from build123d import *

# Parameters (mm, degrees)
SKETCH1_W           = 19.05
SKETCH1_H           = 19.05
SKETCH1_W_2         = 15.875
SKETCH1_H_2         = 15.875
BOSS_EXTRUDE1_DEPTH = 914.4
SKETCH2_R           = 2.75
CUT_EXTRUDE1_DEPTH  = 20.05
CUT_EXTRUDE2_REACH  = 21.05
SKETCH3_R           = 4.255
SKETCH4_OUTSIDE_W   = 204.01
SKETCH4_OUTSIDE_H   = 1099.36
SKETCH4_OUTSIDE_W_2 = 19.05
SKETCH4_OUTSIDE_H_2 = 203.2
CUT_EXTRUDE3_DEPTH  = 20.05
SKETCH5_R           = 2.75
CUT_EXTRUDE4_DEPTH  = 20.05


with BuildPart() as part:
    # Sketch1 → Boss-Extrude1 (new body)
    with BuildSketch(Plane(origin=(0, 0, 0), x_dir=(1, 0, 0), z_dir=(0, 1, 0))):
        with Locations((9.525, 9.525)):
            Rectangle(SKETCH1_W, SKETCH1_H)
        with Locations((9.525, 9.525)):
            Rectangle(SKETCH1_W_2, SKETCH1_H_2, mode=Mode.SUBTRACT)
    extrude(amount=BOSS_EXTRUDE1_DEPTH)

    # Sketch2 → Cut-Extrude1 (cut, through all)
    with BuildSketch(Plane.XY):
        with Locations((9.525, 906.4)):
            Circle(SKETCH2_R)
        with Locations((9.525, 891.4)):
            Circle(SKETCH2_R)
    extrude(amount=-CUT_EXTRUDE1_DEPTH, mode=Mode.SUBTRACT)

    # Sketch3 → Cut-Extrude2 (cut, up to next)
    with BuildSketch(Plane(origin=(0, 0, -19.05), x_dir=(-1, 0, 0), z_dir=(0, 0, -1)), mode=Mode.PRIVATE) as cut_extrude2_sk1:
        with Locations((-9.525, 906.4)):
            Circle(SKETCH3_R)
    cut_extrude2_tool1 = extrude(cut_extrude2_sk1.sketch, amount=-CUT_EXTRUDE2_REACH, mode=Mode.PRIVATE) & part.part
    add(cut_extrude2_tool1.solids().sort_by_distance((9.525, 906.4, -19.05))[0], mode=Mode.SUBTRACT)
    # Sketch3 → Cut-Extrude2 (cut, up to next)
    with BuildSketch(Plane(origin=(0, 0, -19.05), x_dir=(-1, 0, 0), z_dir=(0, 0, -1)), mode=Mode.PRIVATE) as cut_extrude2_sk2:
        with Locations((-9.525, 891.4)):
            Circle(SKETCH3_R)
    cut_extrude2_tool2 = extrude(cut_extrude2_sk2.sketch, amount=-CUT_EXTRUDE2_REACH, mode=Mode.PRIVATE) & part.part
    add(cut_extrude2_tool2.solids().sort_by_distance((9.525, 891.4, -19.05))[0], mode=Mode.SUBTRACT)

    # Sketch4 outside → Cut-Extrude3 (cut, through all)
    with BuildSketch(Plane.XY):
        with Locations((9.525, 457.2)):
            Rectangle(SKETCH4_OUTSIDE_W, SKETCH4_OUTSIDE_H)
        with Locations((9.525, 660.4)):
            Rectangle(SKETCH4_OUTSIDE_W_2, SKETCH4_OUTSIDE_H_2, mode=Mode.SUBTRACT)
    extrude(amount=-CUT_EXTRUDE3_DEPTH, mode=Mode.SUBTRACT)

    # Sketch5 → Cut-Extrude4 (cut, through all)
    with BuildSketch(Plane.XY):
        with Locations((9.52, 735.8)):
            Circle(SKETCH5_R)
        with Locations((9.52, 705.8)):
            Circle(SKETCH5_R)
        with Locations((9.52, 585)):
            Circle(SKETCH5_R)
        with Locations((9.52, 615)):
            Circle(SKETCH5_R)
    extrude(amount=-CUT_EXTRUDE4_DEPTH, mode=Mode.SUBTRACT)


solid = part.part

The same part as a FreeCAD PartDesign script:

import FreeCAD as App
import Part
import Sketcher

V = App.Vector
Q = App.Units.Quantity


def add_polygon(sketch, points):
    """Adds a closed chain of lines whose ends are joined by coincident constraints."""
    first, n = sketch.GeometryCount, len(points)
    for a, b in zip(points, points[1:] + points[:1]):
        sketch.addGeometry(Part.LineSegment(App.Vector(*a, 0), App.Vector(*b, 0)), False)
    for i in range(n):
        sketch.addConstraint(Sketcher.Constraint("Coincident", first + i, 2, first + (i + 1) % n, 1))

doc = App.newDocument("Part")
body = doc.addObject("PartDesign::Body", "Body")

sketch1 = doc.addObject("Sketcher::SketchObject", "Sketch")
body.addObject(sketch1)
sketch1.AttachmentSupport = (doc.XZ_Plane, [""])
sketch1.MapMode = "FlatFace"
add_polygon(sketch1, [(0, -19), (0, 0), (19, 0), (19, -19)])
add_polygon(sketch1, [(17, -2), (2, -2), (2, -17), (17, -17)])
sketch1.addConstraint(Sketcher.Constraint("Vertical", 0))
sketch1.addConstraint(Sketcher.Constraint("Horizontal", 1))
sketch1.addConstraint(Sketcher.Constraint("Vertical", 2))
sketch1.addConstraint(Sketcher.Constraint("Horizontal", 3))
sketch1.addConstraint(Sketcher.Constraint("Horizontal", 4))
sketch1.addConstraint(Sketcher.Constraint("Vertical", 5))
sketch1.addConstraint(Sketcher.Constraint("Horizontal", 6))
sketch1.addConstraint(Sketcher.Constraint("Vertical", 7))
sketch1.addConstraint(Sketcher.Constraint("Coincident", 0, 2, -1, 1))
sketch1.addConstraint(Sketcher.Constraint("Equal", 3, 0))
sketch1.addConstraint(Sketcher.Constraint("Equal", 6, 5))
sketch1.addConstraint(Sketcher.Constraint("DistanceX", 1, 1, 1, 2, Q("0.75 in")))
sketch1.addConstraint(Sketcher.Constraint("DistanceX", 4, 2, 4, 1, Q("0.625 in")))
sketch1.addConstraint(Sketcher.Constraint("DistanceX", -1, 1, 4, 2, Q("0.0625 in")))
sketch1.addConstraint(Sketcher.Constraint("DistanceY", 4, 2, -1, 1, Q("0.0625 in")))
pad1 = doc.addObject("PartDesign::Pad", "Pad")
body.addObject(pad1)
pad1.Profile = sketch1
pad1.Length = Q("36 in")
pad1.Reversed = True

sketch2 = doc.addObject("Sketcher::SketchObject", "Sketch001")
body.addObject(sketch2)
sketch2.AttachmentSupport = (doc.XY_Plane, [""])
sketch2.MapMode = "FlatFace"
sketch2.addGeometry(Part.Circle(V(9.5, 906.4, 0), V(0, 0, 1), 2.8), False)
sketch2.addGeometry(Part.Circle(V(9.5, 891.4, 0), V(0, 0, 1), 2.8), False)
sketch2.addConstraint(Sketcher.Constraint("Equal", 0, 1))
sketch2.addConstraint(Sketcher.Constraint("Vertical", 0, 3, 1, 3))
sketch2.addConstraint(Sketcher.Constraint("Diameter", 0, 5.5))
sketch2.addConstraint(Sketcher.Constraint("DistanceX", -1, 1, 0, 3, Q("0.375 in")))
sketch2.addConstraint(Sketcher.Constraint("DistanceY", -1, 1, 0, 3, 906.4))
sketch2.addConstraint(Sketcher.Constraint("DistanceY", -1, 1, 1, 3, 891.4))
pocket1 = doc.addObject("PartDesign::Pocket", "Pocket")
body.addObject(pocket1)
pocket1.Profile = sketch2
pocket1.Type = "ThroughAll"

sketch3 = doc.addObject("Sketcher::SketchObject", "Sketch002")
body.addObject(sketch3)
sketch3.AttachmentSupport = (doc.XY_Plane, [""])
sketch3.MapMode = "FlatFace"
sketch3.AttachmentOffset = App.Placement(V(0, 0, -0.75 * 25.4), App.Rotation())
sketch3.addGeometry(Part.Circle(V(9.5, 906.4, 0), V(0, 0, 1), 4.3), False)
sketch3.addConstraint(Sketcher.Constraint("Diameter", 0, 8.51))
sketch3.addConstraint(Sketcher.Constraint("DistanceX", -1, 1, 0, 3, Q("0.375 in")))
sketch3.addConstraint(Sketcher.Constraint("DistanceY", -1, 1, 0, 3, 906.4))
pocket2 = doc.addObject("PartDesign::Pocket", "Pocket001")
body.addObject(pocket2)
pocket2.Profile = sketch3
pocket2.Length = Q("0.0625 in")
pocket2.Reversed = True

sketch4 = doc.addObject("Sketcher::SketchObject", "Sketch003")
body.addObject(sketch4)
sketch4.AttachmentSupport = (doc.XY_Plane, [""])
sketch4.MapMode = "FlatFace"
sketch4.AttachmentOffset = App.Placement(V(0, 0, -0.75 * 25.4), App.Rotation())
sketch4.addGeometry(Part.Circle(V(9.5, 891.4, 0), V(0, 0, 1), 4.3), False)
sketch4.addConstraint(Sketcher.Constraint("Diameter", 0, 8.51))
sketch4.addConstraint(Sketcher.Constraint("DistanceX", -1, 1, 0, 3, Q("0.375 in")))
sketch4.addConstraint(Sketcher.Constraint("DistanceY", -1, 1, 0, 3, 891.4))
pocket3 = doc.addObject("PartDesign::Pocket", "Pocket002")
body.addObject(pocket3)
pocket3.Profile = sketch4
pocket3.Length = Q("0.0625 in")
pocket3.Reversed = True

sketch5 = doc.addObject("Sketcher::SketchObject", "Sketch004")
body.addObject(sketch5)
sketch5.AttachmentSupport = (doc.XY_Plane, [""])
sketch5.MapMode = "FlatFace"
add_polygon(sketch5, [(-92, 1007), (-92, -92), (112, -92), (112, 1007)])
add_polygon(sketch5, [(19, 559), (0, 559), (0, 762), (19, 762)])
sketch5.addConstraint(Sketcher.Constraint("Vertical", 0))
sketch5.addConstraint(Sketcher.Constraint("Horizontal", 1))
sketch5.addConstraint(Sketcher.Constraint("Vertical", 2))
sketch5.addConstraint(Sketcher.Constraint("Horizontal", 3))
sketch5.addConstraint(Sketcher.Constraint("Horizontal", 4))
sketch5.addConstraint(Sketcher.Constraint("Vertical", 5))
sketch5.addConstraint(Sketcher.Constraint("Horizontal", 6))
sketch5.addConstraint(Sketcher.Constraint("Vertical", 7))
sketch5.addConstraint(Sketcher.Constraint("PointOnObject", 4, 2, -2))
sketch5.addConstraint(Sketcher.Constraint("DistanceY", 5, 1, 5, 2, Q("8 in")))
sketch5.addConstraint(Sketcher.Constraint("DistanceY", -1, 1, 4, 2, Q("22 in")))
sketch5.addConstraint(Sketcher.Constraint("DistanceX", 4, 2, 4, 1, Q("0.75 in")))
sketch5.addConstraint(Sketcher.Constraint("DistanceX", 1, 1, 1, 2, 204.01))
sketch5.addConstraint(Sketcher.Constraint("DistanceY", 0, 2, 0, 1, 1099.36))
sketch5.addConstraint(Sketcher.Constraint("DistanceX", 0, 2, -1, 1, 92.48))
sketch5.addConstraint(Sketcher.Constraint("DistanceY", 0, 2, -1, 1, 92.48))
pocket4 = doc.addObject("PartDesign::Pocket", "Pocket003")
body.addObject(pocket4)
pocket4.Profile = sketch5
pocket4.Type = "ThroughAll"

sketch6 = doc.addObject("Sketcher::SketchObject", "Sketch005")
body.addObject(sketch6)
sketch6.AttachmentSupport = (doc.XY_Plane, [""])
sketch6.MapMode = "FlatFace"
sketch6.addGeometry(Part.Circle(V(9.5, 735.8, 0), V(0, 0, 1), 2.8), False)
sketch6.addGeometry(Part.Circle(V(9.5, 705.8, 0), V(0, 0, 1), 2.8), False)
sketch6.addGeometry(Part.Circle(V(9.5, 585, 0), V(0, 0, 1), 2.8), False)
sketch6.addGeometry(Part.Circle(V(9.5, 615, 0), V(0, 0, 1), 2.8), False)
sketch6.addConstraint(Sketcher.Constraint("Equal", 0, 1))
sketch6.addConstraint(Sketcher.Constraint("Equal", 1, 2))
sketch6.addConstraint(Sketcher.Constraint("Equal", 2, 3))
sketch6.addConstraint(Sketcher.Constraint("Vertical", 0, 3, 1, 3))
sketch6.addConstraint(Sketcher.Constraint("Vertical", 1, 3, 2, 3))
sketch6.addConstraint(Sketcher.Constraint("Vertical", 2, 3, 3, 3))
sketch6.addConstraint(Sketcher.Constraint("Diameter", 0, 5.5))
sketch6.addConstraint(Sketcher.Constraint("DistanceX", -1, 1, 0, 3, 9.52))
sketch6.addConstraint(Sketcher.Constraint("DistanceY", -1, 1, 0, 3, 735.8))
sketch6.addConstraint(Sketcher.Constraint("DistanceY", -1, 1, 1, 3, 705.8))
sketch6.addConstraint(Sketcher.Constraint("DistanceY", -1, 1, 2, 3, 585.0))
sketch6.addConstraint(Sketcher.Constraint("DistanceY", -1, 1, 3, 3, 615.0))
pocket5 = doc.addObject("PartDesign::Pocket", "Pocket004")
body.addObject(pocket5)
pocket5.Profile = sketch6
pocket5.Type = "ThroughAll"

doc.recompute()
